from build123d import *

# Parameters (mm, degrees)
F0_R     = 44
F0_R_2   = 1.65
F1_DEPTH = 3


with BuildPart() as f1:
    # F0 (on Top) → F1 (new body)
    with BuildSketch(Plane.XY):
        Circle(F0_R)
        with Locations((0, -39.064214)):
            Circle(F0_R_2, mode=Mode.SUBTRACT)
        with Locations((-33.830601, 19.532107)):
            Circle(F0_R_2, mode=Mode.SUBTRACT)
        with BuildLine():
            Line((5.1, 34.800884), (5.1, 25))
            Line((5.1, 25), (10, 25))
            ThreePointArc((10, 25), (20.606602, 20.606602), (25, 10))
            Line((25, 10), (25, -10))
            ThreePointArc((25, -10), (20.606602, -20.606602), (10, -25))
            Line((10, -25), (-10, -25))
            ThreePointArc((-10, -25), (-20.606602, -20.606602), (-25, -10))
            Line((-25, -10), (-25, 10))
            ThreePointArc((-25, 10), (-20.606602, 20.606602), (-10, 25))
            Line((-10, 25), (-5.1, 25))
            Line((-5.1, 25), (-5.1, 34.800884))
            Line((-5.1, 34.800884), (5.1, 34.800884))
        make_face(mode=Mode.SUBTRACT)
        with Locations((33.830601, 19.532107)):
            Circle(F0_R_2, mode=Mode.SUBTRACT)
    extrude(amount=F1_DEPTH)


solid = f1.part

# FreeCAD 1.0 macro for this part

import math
import FreeCAD as App
import Part
import Sketcher

V = App.Vector

doc = App.newDocument("Part")
params = doc.addObject("Spreadsheet::Sheet", "Params")
for row, (alias, value) in enumerate([
    ("sketch1_diameter", "88 mm"),
    ("sketch1_radius", "14.999999 mm"),
    ("sketch1_diameter2", "3.3 mm"),
    ("sketch1_width", "20 mm"),
    ("sketch1_width2", "10.2 mm"),
    ("pad1_length", "3 mm"),
], start=1):
    params.set(f"A{row}", alias)
    params.set(f"B{row}", "=" + value)
    params.setAlias(f"B{row}", alias)

body = doc.addObject("PartDesign::Body", "Body")

sketch1 = body.newObject("Sketcher::SketchObject", "Sketch")
sketch1.AttachmentSupport = (doc.getObject("XY_Plane"), [""])
sketch1.MapMode = "FlatFace"
sketch1.addGeometry([
    Part.Circle(V(0, 0, 0), V(0, 0, 1), 44),
    Part.Circle(V(0, -39.1, 0), V(0, 0, 1), 1.6),
    Part.Circle(V(-33.8, 19.5, 0), V(0, 0, 1), 1.6),
    Part.LineSegment(V(-5.1, 34.8, 0), V(5.1, 34.8, 0)),
    Part.LineSegment(V(5.1, 34.8, 0), V(5.1, 25, 0)),
    Part.LineSegment(V(5.1, 25, 0), V(10, 25, 0)),
    Part.ArcOfCircle(Part.Circle(V(10, 10, 0), V(0, 0, 1), 15), math.radians(0), math.radians(90)),
    Part.LineSegment(V(25, 10, 0), V(25, -10, 0)),
    Part.ArcOfCircle(Part.Circle(V(10, -10, 0), V(0, 0, 1), 15), math.radians(-90), math.radians(0)),
    Part.LineSegment(V(10, -25, 0), V(-10, -25, 0)),
    Part.ArcOfCircle(Part.Circle(V(-10, -10, 0), V(0, 0, 1), 15), math.radians(180), math.radians(270)),
    Part.LineSegment(V(-25, -10, 0), V(-25, 10, 0)),
    Part.ArcOfCircle(Part.Circle(V(-10, 10, 0), V(0, 0, 1), 15), math.radians(90), math.radians(180)),
    Part.LineSegment(V(-10, 25, 0), V(-5.1, 25, 0)),
    Part.LineSegment(V(-5.1, 25, 0), V(-5.1, 34.8, 0)),
    Part.Circle(V(33.8, 19.5, 0), V(0, 0, 1), 1.6),
], False)
sketch1.addConstraint([
    Sketcher.Constraint("Coincident", 3, 2, 4, 1),
    Sketcher.Constraint("Coincident", 4, 2, 5, 1),
    Sketcher.Constraint("Tangent", 5, 2, 6, 2),
    Sketcher.Constraint("Tangent", 6, 1, 7, 1),
    Sketcher.Constraint("Tangent", 7, 2, 8, 2),
    Sketcher.Constraint("Tangent", 8, 1, 9, 1),
    Sketcher.Constraint("Tangent", 9, 2, 10, 2),
    Sketcher.Constraint("Tangent", 10, 1, 11, 1),
    Sketcher.Constraint("Tangent", 11, 2, 12, 2),
    Sketcher.Constraint("Tangent", 12, 1, 13, 1),
    Sketcher.Constraint("Coincident", 13, 2, 14, 1),
    Sketcher.Constraint("Coincident", 14, 2, 3, 1),
    Sketcher.Constraint("Horizontal", 3),
    Sketcher.Constraint("Vertical", 4),
    Sketcher.Constraint("Horizontal", 5),
    Sketcher.Constraint("Vertical", 7),
    Sketcher.Constraint("Horizontal", 9),
    Sketcher.Constraint("Vertical", 11),
    Sketcher.Constraint("Horizontal", 13),
    Sketcher.Constraint("Vertical", 14),
    Sketcher.Constraint("Coincident", 0, 3, -1, 1),
    Sketcher.Constraint("Equal", 1, 2),
    Sketcher.Constraint("Equal", 6, 8),
    Sketcher.Constraint("Equal", 8, 10),
    Sketcher.Constraint("Equal", 10, 12),
    Sketcher.Constraint("Equal", 2, 15),
    Sketcher.Constraint("Symmetric", 6, 3, 10, 3, -1, 1),
    Sketcher.Constraint("Symmetric", 2, 3, 15, 3, -2),
    Sketcher.Constraint("Symmetric", 4, 2, 13, 2, -2),
    Sketcher.Constraint("PointOnObject", 1, 3, -2),
    Sketcher.Constraint("Equal", 9, 7),
    Sketcher.Constraint("Diameter", 0, 88.0),
    Sketcher.Constraint("Radius", 6, 14.999999),
    Sketcher.Constraint("Diameter", 1, 3.3),
    Sketcher.Constraint("DistanceX", 9, 2, 9, 1, 20.0),
    Sketcher.Constraint("DistanceX", 3, 1, 3, 2, 10.2),
    Sketcher.Constraint("DistanceX", 2, 3, -1, 1, 33.830601),
    Sketcher.Constraint("DistanceY", 4, 2, 4, 1, 9.800884),
    Sketcher.Constraint("DistanceY", 1, 3, 2, 3, 58.596321),
    Sketcher.Constraint("DistanceY", 1, 3, -1, 1, 39.064214),
])
sketch1.setExpression("Constraints[31]", "Params.sketch1_diameter")
sketch1.setExpression("Constraints[32]", "Params.sketch1_radius")
sketch1.setExpression("Constraints[33]", "Params.sketch1_diameter2")
sketch1.setExpression("Constraints[34]", "Params.sketch1_width")
sketch1.setExpression("Constraints[35]", "Params.sketch1_width2")
pad1 = body.newObject("PartDesign::Pad", "Pad")
pad1.Profile = sketch1
pad1.setExpression("Length", "Params.pad1_length")

doc.recompute()
